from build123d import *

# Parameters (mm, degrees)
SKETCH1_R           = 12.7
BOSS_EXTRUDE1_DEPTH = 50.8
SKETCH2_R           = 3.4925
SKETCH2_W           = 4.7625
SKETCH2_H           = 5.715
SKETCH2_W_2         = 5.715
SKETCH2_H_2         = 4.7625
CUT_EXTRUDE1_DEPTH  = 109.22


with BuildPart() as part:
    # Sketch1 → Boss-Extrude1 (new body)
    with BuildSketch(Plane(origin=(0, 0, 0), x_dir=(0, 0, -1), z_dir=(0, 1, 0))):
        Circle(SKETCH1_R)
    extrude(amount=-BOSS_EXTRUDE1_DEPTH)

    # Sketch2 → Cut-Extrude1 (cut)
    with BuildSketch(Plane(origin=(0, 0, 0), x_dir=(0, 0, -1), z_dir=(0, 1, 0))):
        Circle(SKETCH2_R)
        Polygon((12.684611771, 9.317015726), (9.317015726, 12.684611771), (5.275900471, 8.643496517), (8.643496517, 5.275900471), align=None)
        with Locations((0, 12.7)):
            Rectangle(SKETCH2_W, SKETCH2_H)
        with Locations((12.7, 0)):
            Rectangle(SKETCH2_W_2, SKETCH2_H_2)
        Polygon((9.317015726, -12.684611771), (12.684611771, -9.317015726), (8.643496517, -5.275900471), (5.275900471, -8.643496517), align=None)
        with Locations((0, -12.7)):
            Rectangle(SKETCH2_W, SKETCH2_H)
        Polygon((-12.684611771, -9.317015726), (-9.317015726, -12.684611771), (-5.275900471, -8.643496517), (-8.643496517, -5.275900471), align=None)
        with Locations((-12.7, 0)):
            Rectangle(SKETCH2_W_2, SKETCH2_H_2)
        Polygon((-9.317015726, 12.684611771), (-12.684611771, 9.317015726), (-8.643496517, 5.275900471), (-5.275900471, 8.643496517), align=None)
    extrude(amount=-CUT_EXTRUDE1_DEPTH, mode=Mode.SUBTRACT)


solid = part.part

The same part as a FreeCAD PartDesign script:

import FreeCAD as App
import Part
import Sketcher
Q = App.Units.Quantity


def add_polygon(sketch, points):
    """Adds a closed chain of lines whose ends are joined by coincident constraints."""
    first, n = sketch.GeometryCount, len(points)
    for a, b in zip(points, points[1:] + points[:1]):
        sketch.addGeometry(Part.LineSegment(App.Vector(*a, 0), App.Vector(*b, 0)), False)
    for i in range(n):
        sketch.addConstraint(Sketcher.Constraint("Coincident", first + i, 2, first + (i + 1) % n, 1))

doc = App.newDocument("Part")
params = doc.addObject("Spreadsheet::Sheet", "Params")
for row, (alias, value) in enumerate([
    ("sketch1_diameter", "1 in"),
    ("pad1_length", "2 in"),
    ("sketch2_diameter", "0.275 in"),
    ("sketch2_width", "0.225 in"),
    ("sketch2_width2", "0.1875 in"),
    ("sketch2_length", "0.1875 in"),
    ("sketch2_length2", "0.225 in"),
    ("pocket1_length", "4.3 in"),
], start=1):
    params.set(f"A{row}", alias)
    params.set(f"B{row}", "=" + value)
    params.setAlias(f"B{row}", alias)

body = doc.addObject("PartDesign::Body", "Body")

# Sketch on XZ plane
sketch1 = body.newObject("Sketcher::SketchObject", "Sketch")
sketch1.AttachmentSupport = (doc.getObject("XZ_Plane"), [""])
sketch1.MapMode = "FlatFace"
sketch1.addGeometry(Part.Circle(App.Vector(0, 0, 0), App.Vector(0, 0, 1), 13), False)
sketch1.addConstraint([
    Sketcher.Constraint("Coincident", 0, 3, -1, 1),
    Sketcher.Constraint("Diameter", 0, Q("1 in")),
])
sketch1.setExpression("Constraints[1]", "Params.sketch1_diameter")
pad1 = body.newObject("PartDesign::Pad", "Pad")
pad1.Profile = sketch1
pad1.setExpression("Length", "Params.pad1_length")

# Sketch on XZ plane
sketch2 = body.newObject("Sketcher::SketchObject", "Sketch001")
sketch2.AttachmentSupport = (doc.getObject("XZ_Plane"), [""])
sketch2.MapMode = "FlatFace"
sketch2.addGeometry(Part.Circle(App.Vector(0, 0, 0), App.Vector(0, 0, 1), 3.5), False)  # 0
add_polygon(sketch2, [(-9.3, -12.7), (-12.7, -9.3), (-8.6, -5.3), (-5.3, -8.6)])  # lines 1-4
add_polygon(sketch2, [(-15.6, 2.4), (-9.8, 2.4), (-9.8, -2.4), (-15.6, -2.4)])  # lines 5-8
add_polygon(sketch2, [(-2.4, -9.8), (2.4, -9.8), (2.4, -15.6), (-2.4, -15.6)])  # lines 9-12
add_polygon(sketch2, [(12.7, -9.3), (9.3, -12.7), (5.3, -8.6), (8.6, -5.3)])  # lines 13-16
add_polygon(sketch2, [(9.8, 2.4), (15.6, 2.4), (15.6, -2.4), (9.8, -2.4)])  # lines 17-20
add_polygon(sketch2, [(9.3, 12.7), (12.7, 9.3), (8.6, 5.3), (5.3, 8.6)])  # lines 21-24
add_polygon(sketch2, [(-2.4, 15.6), (2.4, 15.6), (2.4, 9.8), (-2.4, 9.8)])  # lines 25-28
add_polygon(sketch2, [(-12.7, 9.3), (-9.3, 12.7), (-5.3, 8.6), (-8.6, 5.3)])  # lines 29-32
sketch2.addConstraint([
    Sketcher.Constraint("Horizontal", 5),
    Sketcher.Constraint("Vertical", 6),
    Sketcher.Constraint("Horizontal", 7),
    Sketcher.Constraint("Vertical", 8),
    Sketcher.Constraint("Horizontal", 9),
    Sketcher.Constraint("Vertical", 10),
    Sketcher.Constraint("Horizontal", 11),
    Sketcher.Constraint("Vertical", 12),
    Sketcher.Constraint("Horizontal", 17),
    Sketcher.Constraint("Vertical", 18),
    Sketcher.Constraint("Horizontal", 19),
    Sketcher.Constraint("Vertical", 20),
    Sketcher.Constraint("Horizontal", 25),
    Sketcher.Constraint("Vertical", 26),
    Sketcher.Constraint("Horizontal", 27),
    Sketcher.Constraint("Vertical", 28),
    Sketcher.Constraint("Coincident", 0, 3, -1, 1),
    Sketcher.Constraint("Symmetric", 7, 2, 17, 2, -1, 1),
    Sketcher.Constraint("Symmetric", 5, 2, 19, 2, -1, 1),
    Sketcher.Constraint("Symmetric", 1, 2, 21, 2, -1, 1),
    Sketcher.Constraint("Symmetric", 2, 2, 22, 2, -1, 1),
    Sketcher.Constraint("Symmetric", 3, 2, 23, 2, -1, 1),
    Sketcher.Constraint("Symmetric", 4, 2, 24, 2, -1, 1),
    Sketcher.Constraint("Symmetric", 11, 2, 25, 2, -1, 1),
    Sketcher.Constraint("Symmetric", 9, 2, 27, 2, -1, 1),
    Sketcher.Constraint("Symmetric", 13, 2, 29, 2, -1, 1),
    Sketcher.Constraint("Symmetric", 14, 2, 30, 2, -1, 1),
    Sketcher.Constraint("Symmetric", 15, 2, 31, 2, -1, 1),
    Sketcher.Constraint("Symmetric", 16, 2, 32, 2, -1, 1),
    Sketcher.Constraint("Symmetric", 4, 2, 13, 2, -2),
    Sketcher.Constraint("Symmetric", 3, 2, 14, 2, -2),
    Sketcher.Constraint("Symmetric", 2, 2, 15, 2, -2),
    Sketcher.Constraint("Symmetric", 1, 2, 16, 2, -2),
    Sketcher.Constraint("Perpendicular", 1, 2),
    Sketcher.Constraint("Perpendicular", 2, 3),
    Sketcher.Constraint("Perpendicular", 3, 4),
    Sketcher.Constraint("Parallel", 4, 13),
    Sketcher.Constraint("Horizontal", 8, 2, 17, 2),
    Sketcher.Constraint("Vertical", 10, 2, 25, 2),
    Sketcher.Constraint("Equal", 27, 6),
    Sketcher.Constraint("Equal", 19, 10),
    Sketcher.Constraint("Diameter", 0, Q("0.275 in")),
    Sketcher.Constraint("DistanceX", 5, 1, 5, 2, Q("0.225 in")),
    Sketcher.Constraint("DistanceX", 9, 1, 9, 2, Q("0.1875 in")),
    Sketcher.Constraint("Distance", 1, Q("0.1875 in")),
    Sketcher.Constraint("Distance", 2, Q("0.225 in")),
    Sketcher.Constraint("DistanceX", 5, 2, -1, 1, Q("0.3875 in")),
    Sketcher.Constraint("DistanceY", 9, 2, -1, 1, Q("0.3875 in")),
    Sketcher.Constraint("DistanceY", 2, 2, -1, 1, Q("5.2759 mm")),
    Sketcher.Constraint("DistanceX", 3, 2, -1, 1, Q("5.2759 mm")),
])
sketch2.setExpression("Constraints[73]", "Params.sketch2_diameter")
sketch2.setExpression("Constraints[74]", "Params.sketch2_width")
sketch2.setExpression("Constraints[75]", "Params.sketch2_width2")
sketch2.setExpression("Constraints[76]", "Params.sketch2_length")
sketch2.setExpression("Constraints[77]", "Params.sketch2_length2")
pocket1 = body.newObject("PartDesign::Pocket", "Pocket")
pocket1.Profile = sketch2
pocket1.setExpression("Length", "Params.pocket1_length")
pocket1.Reversed = True

doc.recompute()
